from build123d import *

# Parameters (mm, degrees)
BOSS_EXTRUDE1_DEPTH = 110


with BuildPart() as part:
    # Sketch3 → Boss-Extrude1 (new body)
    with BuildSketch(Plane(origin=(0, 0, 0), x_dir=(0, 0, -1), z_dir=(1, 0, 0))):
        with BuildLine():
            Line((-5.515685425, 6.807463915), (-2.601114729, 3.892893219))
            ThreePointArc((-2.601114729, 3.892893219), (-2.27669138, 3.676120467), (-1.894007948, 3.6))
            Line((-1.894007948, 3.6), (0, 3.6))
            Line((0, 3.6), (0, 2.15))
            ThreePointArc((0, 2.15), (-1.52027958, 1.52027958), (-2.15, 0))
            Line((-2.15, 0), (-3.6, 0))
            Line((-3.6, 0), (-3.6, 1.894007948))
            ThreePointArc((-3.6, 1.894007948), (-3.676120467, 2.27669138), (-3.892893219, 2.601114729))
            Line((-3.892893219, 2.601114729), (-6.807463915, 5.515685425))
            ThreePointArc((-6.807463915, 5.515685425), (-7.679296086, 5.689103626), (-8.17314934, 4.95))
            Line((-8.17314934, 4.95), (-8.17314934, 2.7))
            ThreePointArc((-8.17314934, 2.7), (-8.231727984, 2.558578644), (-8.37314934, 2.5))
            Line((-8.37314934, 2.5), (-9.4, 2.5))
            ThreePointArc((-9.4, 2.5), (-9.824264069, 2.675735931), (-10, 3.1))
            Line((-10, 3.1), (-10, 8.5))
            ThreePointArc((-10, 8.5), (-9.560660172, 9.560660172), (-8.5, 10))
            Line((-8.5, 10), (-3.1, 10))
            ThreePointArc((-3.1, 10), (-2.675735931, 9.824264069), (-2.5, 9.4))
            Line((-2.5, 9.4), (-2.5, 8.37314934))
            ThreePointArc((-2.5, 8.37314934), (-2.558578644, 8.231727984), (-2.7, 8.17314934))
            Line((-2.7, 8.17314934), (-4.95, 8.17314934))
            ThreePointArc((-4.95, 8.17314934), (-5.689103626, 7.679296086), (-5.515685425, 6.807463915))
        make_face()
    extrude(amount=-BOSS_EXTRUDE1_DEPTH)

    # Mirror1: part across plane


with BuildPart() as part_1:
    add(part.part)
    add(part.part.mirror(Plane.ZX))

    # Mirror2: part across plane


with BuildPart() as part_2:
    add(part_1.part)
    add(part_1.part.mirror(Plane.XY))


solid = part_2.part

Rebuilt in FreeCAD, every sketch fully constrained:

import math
import FreeCAD as App
import Part
import Sketcher

V = App.Vector

doc = App.newDocument("Part")
body = doc.addObject("PartDesign::Body", "Body")

sketch1 = body.newObject("Sketcher::SketchObject", "Sketch")
sketch1.AttachmentSupport = (doc.getObject("YZ_Plane"), [""])
sketch1.MapMode = "FlatFace"
sketch1.addGeometry([
    Part.LineSegment(V(3.89, 2.6, 0), V(6.81, 5.52, 0)),
    Part.ArcOfCircle(Part.Circle(V(7.37, 4.95, 0), V(0, 0, 1), 0.8), math.radians(0), math.radians(135)),
    Part.LineSegment(V(8.17, 4.95, 0), V(8.17, 2.7, 0)),
    Part.ArcOfCircle(Part.Circle(V(8.37, 2.7, 0), V(0, 0, 1), 0.2), math.radians(-180), math.radians(-90)),
    Part.LineSegment(V(8.37, 2.5, 0), V(9.4, 2.5, 0)),
    Part.ArcOfCircle(Part.Circle(V(9.4, 3.1, 0), V(0, 0, 1), 0.6), math.radians(-90), math.radians(0)),
    Part.LineSegment(V(10, 3.1, 0), V(10, 8.5, 0)),
    Part.ArcOfCircle(Part.Circle(V(8.5, 8.5, 0), V(0, 0, 1), 1.5), math.radians(0), math.radians(90)),
    Part.LineSegment(V(8.5, 10, 0), V(3.1, 10, 0)),
    Part.ArcOfCircle(Part.Circle(V(3.1, 9.4, 0), V(0, 0, 1), 0.6), math.radians(90), math.radians(180)),
    Part.LineSegment(V(2.5, 9.4, 0), V(2.5, 8.37, 0)),
    Part.ArcOfCircle(Part.Circle(V(2.7, 8.37, 0), V(0, 0, 1), 0.2), math.radians(-180), math.radians(-90)),
    Part.LineSegment(V(2.7, 8.17, 0), V(4.95, 8.17, 0)),
    Part.ArcOfCircle(Part.Circle(V(4.95, 7.37, 0), V(0, 0, 1), 0.8), math.radians(-45), math.radians(90)),
    Part.LineSegment(V(5.52, 6.81, 0), V(2.6, 3.89, 0)),
    Part.ArcOfCircle(Part.Circle(V(1.89, 4.6, 0), V(0, 0, 1), 1), math.radians(-90), math.radians(-45)),
    Part.LineSegment(V(1.89, 3.6, 0), V(0, 3.6, 0)),
    Part.LineSegment(V(0, 3.6, 0), V(0, 2.15, 0)),
    Part.ArcOfCircle(Part.Circle(V(0, 0, 0), V(0, 0, 1), 2.15), math.radians(0), math.radians(90)),
    Part.LineSegment(V(2.15, 0, 0), V(3.6, 0, 0)),
    Part.LineSegment(V(3.6, 0, 0), V(3.6, 1.89, 0)),
    Part.ArcOfCircle(Part.Circle(V(4.6, 1.89, 0), V(0, 0, 1), 1), math.radians(135), math.radians(180)),
], False)
sketch1.addConstraint([
    Sketcher.Constraint("Tangent", 0, 2, 1, 2),
    Sketcher.Constraint("Tangent", 1, 1, 2, 1),
    Sketcher.Constraint("Tangent", 2, 2, 3, 1),
    Sketcher.Constraint("Tangent", 3, 2, 4, 1),
    Sketcher.Constraint("Tangent", 4, 2, 5, 1),
    Sketcher.Constraint("Tangent", 5, 2, 6, 1),
    Sketcher.Constraint("Tangent", 6, 2, 7, 1),
    Sketcher.Constraint("Tangent", 7, 2, 8, 1),
    Sketcher.Constraint("Tangent", 8, 2, 9, 1),
    Sketcher.Constraint("Tangent", 9, 2, 10, 1),
    Sketcher.Constraint("Tangent", 10, 2, 11, 1),
    Sketcher.Constraint("Tangent", 11, 2, 12, 1),
    Sketcher.Constraint("Tangent", 12, 2, 13, 2),
    Sketcher.Constraint("Tangent", 13, 1, 14, 1),
    Sketcher.Constraint("Tangent", 14, 2, 15, 2),
    Sketcher.Constraint("Tangent", 15, 1, 16, 1),
    Sketcher.Constraint("Coincident", 16, 2, 17, 1),
    Sketcher.Constraint("Coincident", 17, 2, 18, 2),
    Sketcher.Constraint("Coincident", 18, 1, 19, 1),
    Sketcher.Constraint("Coincident", 19, 2, 20, 1),
    Sketcher.Constraint("Tangent", 20, 2, 21, 2),
    Sketcher.Constraint("Tangent", 21, 1, 0, 1),
    Sketcher.Constraint("Vertical", 2),
    Sketcher.Constraint("Horizontal", 4),
    Sketcher.Constraint("Vertical", 6),
    Sketcher.Constraint("Horizontal", 8),
    Sketcher.Constraint("Vertical", 10),
    Sketcher.Constraint("Horizontal", 12),
    Sketcher.Constraint("Horizontal", 16),
    Sketcher.Constraint("Vertical", 17),
    Sketcher.Constraint("Horizontal", 19),
    Sketcher.Constraint("Vertical", 20),
    Sketcher.Constraint("Coincident", 18, 3, -1, 1),
    Sketcher.Constraint("Equal", 5, 9),
    Sketcher.Constraint("Equal", 3, 11),
    Sketcher.Constraint("Equal", 1, 13),
    Sketcher.Constraint("Equal", 15, 21),
    Sketcher.Constraint("PointOnObject", 16, 2, -2),
    Sketcher.Constraint("PointOnObject", 18, 1, -1),
    Sketcher.Constraint("Parallel", 0, 14),
    Sketcher.Constraint("Equal", 12, 2),
    Sketcher.Constraint("Equal", 8, 6),
    Sketcher.Constraint("Equal", 4, 10),
    Sketcher.Constraint("Equal", 19, 17),
    Sketcher.Constraint("Equal", 16, 20),
    Sketcher.Constraint("Equal", 0, 14),
    Sketcher.Constraint("Radius", 15, 1.0),
    Sketcher.Constraint("Radius", 1, 0.8),
    Sketcher.Constraint("Radius", 3, 0.2),
    Sketcher.Constraint("Radius", 5, 0.6),
    Sketcher.Constraint("Radius", 7, 1.5),
    Sketcher.Constraint("Radius", 18, 2.15),
    Sketcher.Constraint("DistanceX", 8, 2, 8, 1, 5.4),
    Sketcher.Constraint("DistanceX", -1, 1, 5, 2, 10.0),
    Sketcher.Constraint("DistanceX", 12, 1, 12, 2, 2.25),
    Sketcher.Constraint("DistanceX", 19, 1, 19, 2, 1.45),
    Sketcher.Constraint("DistanceX", 4, 1, 4, 2, 1.026851),
])
pad1 = body.newObject("PartDesign::Pad", "Pad")
pad1.Profile = sketch1
pad1.Length = 110
pad1.Reversed = True
body2 = doc.addObject("PartDesign::Body", "Body001")
doc.recompute()

body2.BaseFeature = body
doc.recompute()

mirroring = doc.addObject("Part::Mirroring", "Mirroring")
mirroring.Source = body
mirroring.Base = V(0, 0, 0)
mirroring.Normal = V(0, 1, 0)
body3 = doc.addObject("PartDesign::Body", "Body002")
body3.BaseFeature = mirroring
boolean = body2.newObject("PartDesign::Boolean", "Boolean")
boolean.Type = "Fuse"
boolean.addObjects([body3])
doc.recompute()
body4 = doc.addObject("PartDesign::Body", "Body003")
doc.recompute()

body4.BaseFeature = body2
doc.recompute()

mirroring2 = doc.addObject("Part::Mirroring", "Mirroring001")
mirroring2.Source = body2
mirroring2.Base = V(0, 0, 0)
mirroring2.Normal = V(0, 0, 1)
body5 = doc.addObject("PartDesign::Body", "Body004")
body5.BaseFeature = mirroring2
boolean2 = body4.newObject("PartDesign::Boolean", "Boolean001")
boolean2.Type = "Fuse"
boolean2.addObjects([body5])
doc.recompute()
mirroring.Visibility = False
mirroring2.Visibility = False

doc.recompute()
